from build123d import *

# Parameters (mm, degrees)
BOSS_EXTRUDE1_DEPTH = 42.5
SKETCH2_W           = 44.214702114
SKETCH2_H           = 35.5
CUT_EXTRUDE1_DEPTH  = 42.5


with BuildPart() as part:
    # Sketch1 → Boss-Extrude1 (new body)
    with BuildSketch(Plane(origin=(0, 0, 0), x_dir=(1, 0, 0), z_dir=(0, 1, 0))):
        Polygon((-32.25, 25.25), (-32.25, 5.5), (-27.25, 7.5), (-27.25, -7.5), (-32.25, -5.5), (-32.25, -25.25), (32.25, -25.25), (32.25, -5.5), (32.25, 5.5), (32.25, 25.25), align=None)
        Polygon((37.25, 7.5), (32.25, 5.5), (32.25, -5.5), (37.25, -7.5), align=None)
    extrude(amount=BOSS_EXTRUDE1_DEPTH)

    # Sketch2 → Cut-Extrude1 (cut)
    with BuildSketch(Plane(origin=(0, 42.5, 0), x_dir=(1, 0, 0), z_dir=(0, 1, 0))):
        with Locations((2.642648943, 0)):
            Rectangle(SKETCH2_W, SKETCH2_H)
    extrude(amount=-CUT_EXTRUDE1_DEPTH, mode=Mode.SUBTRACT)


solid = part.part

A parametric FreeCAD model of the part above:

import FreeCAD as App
import Part
import Sketcher
Q = App.Units.Quantity

doc = App.newDocument("Part")
body = doc.addObject("PartDesign::Body", "Body")

sketch1 = body.newObject("Sketcher::SketchObject", "Sketch")
sketch1.AttachmentSupport = (doc.getObject("XZ_Plane"), [""])
sketch1.MapMode = "FlatFace"
sketch1.addGeometry([
    Part.LineSegment(App.Vector(-32, -25, 0), App.Vector(-32, -6, 0)),
    Part.LineSegment(App.Vector(-32, -6, 0), App.Vector(-27, -8, 0)),
    Part.LineSegment(App.Vector(-27, -8, 0), App.Vector(-27, 8, 0)),
    Part.LineSegment(App.Vector(-27, 8, 0), App.Vector(-32, 6, 0)),
    Part.LineSegment(App.Vector(-32, 6, 0), App.Vector(-32, 25, 0)),
    Part.LineSegment(App.Vector(-32, 25, 0), App.Vector(32, 25, 0)),
    Part.LineSegment(App.Vector(32, 25, 0), App.Vector(32, 6, 0)),
    Part.LineSegment(App.Vector(32, 6, 0), App.Vector(37, 8, 0)),
    Part.LineSegment(App.Vector(37, 8, 0), App.Vector(37, -8, 0)),
    Part.LineSegment(App.Vector(37, -8, 0), App.Vector(32, -6, 0)),
    Part.LineSegment(App.Vector(32, -6, 0), App.Vector(32, -25, 0)),
    Part.LineSegment(App.Vector(32, -25, 0), App.Vector(-32, -25, 0)),
], False)
sketch1.addConstraint([
    Sketcher.Constraint("Coincident", 0, 2, 1, 1),
    Sketcher.Constraint("Coincident", 1, 2, 2, 1),
    Sketcher.Constraint("Coincident", 2, 2, 3, 1),
    Sketcher.Constraint("Coincident", 3, 2, 4, 1),
    Sketcher.Constraint("Coincident", 4, 2, 5, 1),
    Sketcher.Constraint("Coincident", 5, 2, 6, 1),
    Sketcher.Constraint("Coincident", 6, 2, 7, 1),
    Sketcher.Constraint("Coincident", 7, 2, 8, 1),
    Sketcher.Constraint("Coincident", 8, 2, 9, 1),
    Sketcher.Constraint("Coincident", 9, 2, 10, 1),
    Sketcher.Constraint("Coincident", 10, 2, 11, 1),
    Sketcher.Constraint("Coincident", 11, 2, 0, 1),
    Sketcher.Constraint("Vertical", 0),
    Sketcher.Constraint("Vertical", 2),
    Sketcher.Constraint("Vertical", 4),
    Sketcher.Constraint("Horizontal", 5),
    Sketcher.Constraint("Vertical", 6),
    Sketcher.Constraint("Vertical", 8),
    Sketcher.Constraint("Vertical", 10),
    Sketcher.Constraint("Horizontal", 11),
    Sketcher.Constraint("Symmetric", 0, 2, 6, 2, -1, 1),
    Sketcher.Constraint("Symmetric", 3, 2, 9, 2, -1, 1),
    Sketcher.Constraint("Symmetric", 3, 2, 6, 2, -2),
    Sketcher.Constraint("Parallel", 3, 7),
    Sketcher.Constraint("Parallel", 1, 9),
    Sketcher.Constraint("Horizontal", 2, 2, 7, 2),
    Sketcher.Constraint("Equal", 0, 4),
    Sketcher.Constraint("Equal", 1, 3),
    Sketcher.Constraint("DistanceY", 2, 1, 2, 2, Q("15 mm")),
    Sketcher.Constraint("DistanceX", 5, 1, 5, 2, Q("64.5 mm")),
    Sketcher.Constraint("DistanceX", 0, 2, 1, 2, Q("5 mm")),
    Sketcher.Constraint("DistanceY", 1, 2, 0, 2, Q("2 mm")),
    Sketcher.Constraint("DistanceY", 0, 1, 0, 2, Q("19.75 mm")),
])
pad1 = body.newObject("PartDesign::Pad", "Pad")
pad1.Profile = sketch1
pad1.Length = 42.5
pad1.Reversed = True

sketch2 = body.newObject("Sketcher::SketchObject", "Sketch001")
sketch2.AttachmentSupport = (doc.getObject("XZ_Plane"), [""])
sketch2.MapMode = "FlatFace"
sketch2.AttachmentOffset = App.Placement(App.Vector(0, 0, -42.5), App.Rotation())
sketch2.addGeometry([
    Part.LineSegment(App.Vector(-19, -18, 0), App.Vector(-19, 18, 0)),
    Part.LineSegment(App.Vector(-19, 18, 0), App.Vector(25, 18, 0)),
    Part.LineSegment(App.Vector(25, 18, 0), App.Vector(25, -18, 0)),
    Part.LineSegment(App.Vector(25, -18, 0), App.Vector(-19, -18, 0)),
], False)
sketch2.addConstraint([
    Sketcher.Constraint("Coincident", 0, 2, 1, 1),
    Sketcher.Constraint("Coincident", 1, 2, 2, 1),
    Sketcher.Constraint("Coincident", 2, 2, 3, 1),
    Sketcher.Constraint("Coincident", 3, 2, 0, 1),
    Sketcher.Constraint("Vertical", 0),
    Sketcher.Constraint("Horizontal", 1),
    Sketcher.Constraint("Vertical", 2),
    Sketcher.Constraint("Horizontal", 3),
    Sketcher.Constraint("DistanceY", 0, 1, 0, 2, Q("35.5 mm")),
    Sketcher.Constraint("DistanceY", -1, 1, 0, 2, Q("17.75 mm")),
    Sketcher.Constraint("DistanceX", -1, 1, 1, 2, Q("24.75 mm")),
    Sketcher.Constraint("DistanceX", 1, 1, 1, 2, Q("44.214702 mm")),
])
pocket1 = body.newObject("PartDesign::Pocket", "Pocket")
pocket1.Profile = sketch2
pocket1.Length = 42.5
pocket1.Reversed = True

doc.recompute()
